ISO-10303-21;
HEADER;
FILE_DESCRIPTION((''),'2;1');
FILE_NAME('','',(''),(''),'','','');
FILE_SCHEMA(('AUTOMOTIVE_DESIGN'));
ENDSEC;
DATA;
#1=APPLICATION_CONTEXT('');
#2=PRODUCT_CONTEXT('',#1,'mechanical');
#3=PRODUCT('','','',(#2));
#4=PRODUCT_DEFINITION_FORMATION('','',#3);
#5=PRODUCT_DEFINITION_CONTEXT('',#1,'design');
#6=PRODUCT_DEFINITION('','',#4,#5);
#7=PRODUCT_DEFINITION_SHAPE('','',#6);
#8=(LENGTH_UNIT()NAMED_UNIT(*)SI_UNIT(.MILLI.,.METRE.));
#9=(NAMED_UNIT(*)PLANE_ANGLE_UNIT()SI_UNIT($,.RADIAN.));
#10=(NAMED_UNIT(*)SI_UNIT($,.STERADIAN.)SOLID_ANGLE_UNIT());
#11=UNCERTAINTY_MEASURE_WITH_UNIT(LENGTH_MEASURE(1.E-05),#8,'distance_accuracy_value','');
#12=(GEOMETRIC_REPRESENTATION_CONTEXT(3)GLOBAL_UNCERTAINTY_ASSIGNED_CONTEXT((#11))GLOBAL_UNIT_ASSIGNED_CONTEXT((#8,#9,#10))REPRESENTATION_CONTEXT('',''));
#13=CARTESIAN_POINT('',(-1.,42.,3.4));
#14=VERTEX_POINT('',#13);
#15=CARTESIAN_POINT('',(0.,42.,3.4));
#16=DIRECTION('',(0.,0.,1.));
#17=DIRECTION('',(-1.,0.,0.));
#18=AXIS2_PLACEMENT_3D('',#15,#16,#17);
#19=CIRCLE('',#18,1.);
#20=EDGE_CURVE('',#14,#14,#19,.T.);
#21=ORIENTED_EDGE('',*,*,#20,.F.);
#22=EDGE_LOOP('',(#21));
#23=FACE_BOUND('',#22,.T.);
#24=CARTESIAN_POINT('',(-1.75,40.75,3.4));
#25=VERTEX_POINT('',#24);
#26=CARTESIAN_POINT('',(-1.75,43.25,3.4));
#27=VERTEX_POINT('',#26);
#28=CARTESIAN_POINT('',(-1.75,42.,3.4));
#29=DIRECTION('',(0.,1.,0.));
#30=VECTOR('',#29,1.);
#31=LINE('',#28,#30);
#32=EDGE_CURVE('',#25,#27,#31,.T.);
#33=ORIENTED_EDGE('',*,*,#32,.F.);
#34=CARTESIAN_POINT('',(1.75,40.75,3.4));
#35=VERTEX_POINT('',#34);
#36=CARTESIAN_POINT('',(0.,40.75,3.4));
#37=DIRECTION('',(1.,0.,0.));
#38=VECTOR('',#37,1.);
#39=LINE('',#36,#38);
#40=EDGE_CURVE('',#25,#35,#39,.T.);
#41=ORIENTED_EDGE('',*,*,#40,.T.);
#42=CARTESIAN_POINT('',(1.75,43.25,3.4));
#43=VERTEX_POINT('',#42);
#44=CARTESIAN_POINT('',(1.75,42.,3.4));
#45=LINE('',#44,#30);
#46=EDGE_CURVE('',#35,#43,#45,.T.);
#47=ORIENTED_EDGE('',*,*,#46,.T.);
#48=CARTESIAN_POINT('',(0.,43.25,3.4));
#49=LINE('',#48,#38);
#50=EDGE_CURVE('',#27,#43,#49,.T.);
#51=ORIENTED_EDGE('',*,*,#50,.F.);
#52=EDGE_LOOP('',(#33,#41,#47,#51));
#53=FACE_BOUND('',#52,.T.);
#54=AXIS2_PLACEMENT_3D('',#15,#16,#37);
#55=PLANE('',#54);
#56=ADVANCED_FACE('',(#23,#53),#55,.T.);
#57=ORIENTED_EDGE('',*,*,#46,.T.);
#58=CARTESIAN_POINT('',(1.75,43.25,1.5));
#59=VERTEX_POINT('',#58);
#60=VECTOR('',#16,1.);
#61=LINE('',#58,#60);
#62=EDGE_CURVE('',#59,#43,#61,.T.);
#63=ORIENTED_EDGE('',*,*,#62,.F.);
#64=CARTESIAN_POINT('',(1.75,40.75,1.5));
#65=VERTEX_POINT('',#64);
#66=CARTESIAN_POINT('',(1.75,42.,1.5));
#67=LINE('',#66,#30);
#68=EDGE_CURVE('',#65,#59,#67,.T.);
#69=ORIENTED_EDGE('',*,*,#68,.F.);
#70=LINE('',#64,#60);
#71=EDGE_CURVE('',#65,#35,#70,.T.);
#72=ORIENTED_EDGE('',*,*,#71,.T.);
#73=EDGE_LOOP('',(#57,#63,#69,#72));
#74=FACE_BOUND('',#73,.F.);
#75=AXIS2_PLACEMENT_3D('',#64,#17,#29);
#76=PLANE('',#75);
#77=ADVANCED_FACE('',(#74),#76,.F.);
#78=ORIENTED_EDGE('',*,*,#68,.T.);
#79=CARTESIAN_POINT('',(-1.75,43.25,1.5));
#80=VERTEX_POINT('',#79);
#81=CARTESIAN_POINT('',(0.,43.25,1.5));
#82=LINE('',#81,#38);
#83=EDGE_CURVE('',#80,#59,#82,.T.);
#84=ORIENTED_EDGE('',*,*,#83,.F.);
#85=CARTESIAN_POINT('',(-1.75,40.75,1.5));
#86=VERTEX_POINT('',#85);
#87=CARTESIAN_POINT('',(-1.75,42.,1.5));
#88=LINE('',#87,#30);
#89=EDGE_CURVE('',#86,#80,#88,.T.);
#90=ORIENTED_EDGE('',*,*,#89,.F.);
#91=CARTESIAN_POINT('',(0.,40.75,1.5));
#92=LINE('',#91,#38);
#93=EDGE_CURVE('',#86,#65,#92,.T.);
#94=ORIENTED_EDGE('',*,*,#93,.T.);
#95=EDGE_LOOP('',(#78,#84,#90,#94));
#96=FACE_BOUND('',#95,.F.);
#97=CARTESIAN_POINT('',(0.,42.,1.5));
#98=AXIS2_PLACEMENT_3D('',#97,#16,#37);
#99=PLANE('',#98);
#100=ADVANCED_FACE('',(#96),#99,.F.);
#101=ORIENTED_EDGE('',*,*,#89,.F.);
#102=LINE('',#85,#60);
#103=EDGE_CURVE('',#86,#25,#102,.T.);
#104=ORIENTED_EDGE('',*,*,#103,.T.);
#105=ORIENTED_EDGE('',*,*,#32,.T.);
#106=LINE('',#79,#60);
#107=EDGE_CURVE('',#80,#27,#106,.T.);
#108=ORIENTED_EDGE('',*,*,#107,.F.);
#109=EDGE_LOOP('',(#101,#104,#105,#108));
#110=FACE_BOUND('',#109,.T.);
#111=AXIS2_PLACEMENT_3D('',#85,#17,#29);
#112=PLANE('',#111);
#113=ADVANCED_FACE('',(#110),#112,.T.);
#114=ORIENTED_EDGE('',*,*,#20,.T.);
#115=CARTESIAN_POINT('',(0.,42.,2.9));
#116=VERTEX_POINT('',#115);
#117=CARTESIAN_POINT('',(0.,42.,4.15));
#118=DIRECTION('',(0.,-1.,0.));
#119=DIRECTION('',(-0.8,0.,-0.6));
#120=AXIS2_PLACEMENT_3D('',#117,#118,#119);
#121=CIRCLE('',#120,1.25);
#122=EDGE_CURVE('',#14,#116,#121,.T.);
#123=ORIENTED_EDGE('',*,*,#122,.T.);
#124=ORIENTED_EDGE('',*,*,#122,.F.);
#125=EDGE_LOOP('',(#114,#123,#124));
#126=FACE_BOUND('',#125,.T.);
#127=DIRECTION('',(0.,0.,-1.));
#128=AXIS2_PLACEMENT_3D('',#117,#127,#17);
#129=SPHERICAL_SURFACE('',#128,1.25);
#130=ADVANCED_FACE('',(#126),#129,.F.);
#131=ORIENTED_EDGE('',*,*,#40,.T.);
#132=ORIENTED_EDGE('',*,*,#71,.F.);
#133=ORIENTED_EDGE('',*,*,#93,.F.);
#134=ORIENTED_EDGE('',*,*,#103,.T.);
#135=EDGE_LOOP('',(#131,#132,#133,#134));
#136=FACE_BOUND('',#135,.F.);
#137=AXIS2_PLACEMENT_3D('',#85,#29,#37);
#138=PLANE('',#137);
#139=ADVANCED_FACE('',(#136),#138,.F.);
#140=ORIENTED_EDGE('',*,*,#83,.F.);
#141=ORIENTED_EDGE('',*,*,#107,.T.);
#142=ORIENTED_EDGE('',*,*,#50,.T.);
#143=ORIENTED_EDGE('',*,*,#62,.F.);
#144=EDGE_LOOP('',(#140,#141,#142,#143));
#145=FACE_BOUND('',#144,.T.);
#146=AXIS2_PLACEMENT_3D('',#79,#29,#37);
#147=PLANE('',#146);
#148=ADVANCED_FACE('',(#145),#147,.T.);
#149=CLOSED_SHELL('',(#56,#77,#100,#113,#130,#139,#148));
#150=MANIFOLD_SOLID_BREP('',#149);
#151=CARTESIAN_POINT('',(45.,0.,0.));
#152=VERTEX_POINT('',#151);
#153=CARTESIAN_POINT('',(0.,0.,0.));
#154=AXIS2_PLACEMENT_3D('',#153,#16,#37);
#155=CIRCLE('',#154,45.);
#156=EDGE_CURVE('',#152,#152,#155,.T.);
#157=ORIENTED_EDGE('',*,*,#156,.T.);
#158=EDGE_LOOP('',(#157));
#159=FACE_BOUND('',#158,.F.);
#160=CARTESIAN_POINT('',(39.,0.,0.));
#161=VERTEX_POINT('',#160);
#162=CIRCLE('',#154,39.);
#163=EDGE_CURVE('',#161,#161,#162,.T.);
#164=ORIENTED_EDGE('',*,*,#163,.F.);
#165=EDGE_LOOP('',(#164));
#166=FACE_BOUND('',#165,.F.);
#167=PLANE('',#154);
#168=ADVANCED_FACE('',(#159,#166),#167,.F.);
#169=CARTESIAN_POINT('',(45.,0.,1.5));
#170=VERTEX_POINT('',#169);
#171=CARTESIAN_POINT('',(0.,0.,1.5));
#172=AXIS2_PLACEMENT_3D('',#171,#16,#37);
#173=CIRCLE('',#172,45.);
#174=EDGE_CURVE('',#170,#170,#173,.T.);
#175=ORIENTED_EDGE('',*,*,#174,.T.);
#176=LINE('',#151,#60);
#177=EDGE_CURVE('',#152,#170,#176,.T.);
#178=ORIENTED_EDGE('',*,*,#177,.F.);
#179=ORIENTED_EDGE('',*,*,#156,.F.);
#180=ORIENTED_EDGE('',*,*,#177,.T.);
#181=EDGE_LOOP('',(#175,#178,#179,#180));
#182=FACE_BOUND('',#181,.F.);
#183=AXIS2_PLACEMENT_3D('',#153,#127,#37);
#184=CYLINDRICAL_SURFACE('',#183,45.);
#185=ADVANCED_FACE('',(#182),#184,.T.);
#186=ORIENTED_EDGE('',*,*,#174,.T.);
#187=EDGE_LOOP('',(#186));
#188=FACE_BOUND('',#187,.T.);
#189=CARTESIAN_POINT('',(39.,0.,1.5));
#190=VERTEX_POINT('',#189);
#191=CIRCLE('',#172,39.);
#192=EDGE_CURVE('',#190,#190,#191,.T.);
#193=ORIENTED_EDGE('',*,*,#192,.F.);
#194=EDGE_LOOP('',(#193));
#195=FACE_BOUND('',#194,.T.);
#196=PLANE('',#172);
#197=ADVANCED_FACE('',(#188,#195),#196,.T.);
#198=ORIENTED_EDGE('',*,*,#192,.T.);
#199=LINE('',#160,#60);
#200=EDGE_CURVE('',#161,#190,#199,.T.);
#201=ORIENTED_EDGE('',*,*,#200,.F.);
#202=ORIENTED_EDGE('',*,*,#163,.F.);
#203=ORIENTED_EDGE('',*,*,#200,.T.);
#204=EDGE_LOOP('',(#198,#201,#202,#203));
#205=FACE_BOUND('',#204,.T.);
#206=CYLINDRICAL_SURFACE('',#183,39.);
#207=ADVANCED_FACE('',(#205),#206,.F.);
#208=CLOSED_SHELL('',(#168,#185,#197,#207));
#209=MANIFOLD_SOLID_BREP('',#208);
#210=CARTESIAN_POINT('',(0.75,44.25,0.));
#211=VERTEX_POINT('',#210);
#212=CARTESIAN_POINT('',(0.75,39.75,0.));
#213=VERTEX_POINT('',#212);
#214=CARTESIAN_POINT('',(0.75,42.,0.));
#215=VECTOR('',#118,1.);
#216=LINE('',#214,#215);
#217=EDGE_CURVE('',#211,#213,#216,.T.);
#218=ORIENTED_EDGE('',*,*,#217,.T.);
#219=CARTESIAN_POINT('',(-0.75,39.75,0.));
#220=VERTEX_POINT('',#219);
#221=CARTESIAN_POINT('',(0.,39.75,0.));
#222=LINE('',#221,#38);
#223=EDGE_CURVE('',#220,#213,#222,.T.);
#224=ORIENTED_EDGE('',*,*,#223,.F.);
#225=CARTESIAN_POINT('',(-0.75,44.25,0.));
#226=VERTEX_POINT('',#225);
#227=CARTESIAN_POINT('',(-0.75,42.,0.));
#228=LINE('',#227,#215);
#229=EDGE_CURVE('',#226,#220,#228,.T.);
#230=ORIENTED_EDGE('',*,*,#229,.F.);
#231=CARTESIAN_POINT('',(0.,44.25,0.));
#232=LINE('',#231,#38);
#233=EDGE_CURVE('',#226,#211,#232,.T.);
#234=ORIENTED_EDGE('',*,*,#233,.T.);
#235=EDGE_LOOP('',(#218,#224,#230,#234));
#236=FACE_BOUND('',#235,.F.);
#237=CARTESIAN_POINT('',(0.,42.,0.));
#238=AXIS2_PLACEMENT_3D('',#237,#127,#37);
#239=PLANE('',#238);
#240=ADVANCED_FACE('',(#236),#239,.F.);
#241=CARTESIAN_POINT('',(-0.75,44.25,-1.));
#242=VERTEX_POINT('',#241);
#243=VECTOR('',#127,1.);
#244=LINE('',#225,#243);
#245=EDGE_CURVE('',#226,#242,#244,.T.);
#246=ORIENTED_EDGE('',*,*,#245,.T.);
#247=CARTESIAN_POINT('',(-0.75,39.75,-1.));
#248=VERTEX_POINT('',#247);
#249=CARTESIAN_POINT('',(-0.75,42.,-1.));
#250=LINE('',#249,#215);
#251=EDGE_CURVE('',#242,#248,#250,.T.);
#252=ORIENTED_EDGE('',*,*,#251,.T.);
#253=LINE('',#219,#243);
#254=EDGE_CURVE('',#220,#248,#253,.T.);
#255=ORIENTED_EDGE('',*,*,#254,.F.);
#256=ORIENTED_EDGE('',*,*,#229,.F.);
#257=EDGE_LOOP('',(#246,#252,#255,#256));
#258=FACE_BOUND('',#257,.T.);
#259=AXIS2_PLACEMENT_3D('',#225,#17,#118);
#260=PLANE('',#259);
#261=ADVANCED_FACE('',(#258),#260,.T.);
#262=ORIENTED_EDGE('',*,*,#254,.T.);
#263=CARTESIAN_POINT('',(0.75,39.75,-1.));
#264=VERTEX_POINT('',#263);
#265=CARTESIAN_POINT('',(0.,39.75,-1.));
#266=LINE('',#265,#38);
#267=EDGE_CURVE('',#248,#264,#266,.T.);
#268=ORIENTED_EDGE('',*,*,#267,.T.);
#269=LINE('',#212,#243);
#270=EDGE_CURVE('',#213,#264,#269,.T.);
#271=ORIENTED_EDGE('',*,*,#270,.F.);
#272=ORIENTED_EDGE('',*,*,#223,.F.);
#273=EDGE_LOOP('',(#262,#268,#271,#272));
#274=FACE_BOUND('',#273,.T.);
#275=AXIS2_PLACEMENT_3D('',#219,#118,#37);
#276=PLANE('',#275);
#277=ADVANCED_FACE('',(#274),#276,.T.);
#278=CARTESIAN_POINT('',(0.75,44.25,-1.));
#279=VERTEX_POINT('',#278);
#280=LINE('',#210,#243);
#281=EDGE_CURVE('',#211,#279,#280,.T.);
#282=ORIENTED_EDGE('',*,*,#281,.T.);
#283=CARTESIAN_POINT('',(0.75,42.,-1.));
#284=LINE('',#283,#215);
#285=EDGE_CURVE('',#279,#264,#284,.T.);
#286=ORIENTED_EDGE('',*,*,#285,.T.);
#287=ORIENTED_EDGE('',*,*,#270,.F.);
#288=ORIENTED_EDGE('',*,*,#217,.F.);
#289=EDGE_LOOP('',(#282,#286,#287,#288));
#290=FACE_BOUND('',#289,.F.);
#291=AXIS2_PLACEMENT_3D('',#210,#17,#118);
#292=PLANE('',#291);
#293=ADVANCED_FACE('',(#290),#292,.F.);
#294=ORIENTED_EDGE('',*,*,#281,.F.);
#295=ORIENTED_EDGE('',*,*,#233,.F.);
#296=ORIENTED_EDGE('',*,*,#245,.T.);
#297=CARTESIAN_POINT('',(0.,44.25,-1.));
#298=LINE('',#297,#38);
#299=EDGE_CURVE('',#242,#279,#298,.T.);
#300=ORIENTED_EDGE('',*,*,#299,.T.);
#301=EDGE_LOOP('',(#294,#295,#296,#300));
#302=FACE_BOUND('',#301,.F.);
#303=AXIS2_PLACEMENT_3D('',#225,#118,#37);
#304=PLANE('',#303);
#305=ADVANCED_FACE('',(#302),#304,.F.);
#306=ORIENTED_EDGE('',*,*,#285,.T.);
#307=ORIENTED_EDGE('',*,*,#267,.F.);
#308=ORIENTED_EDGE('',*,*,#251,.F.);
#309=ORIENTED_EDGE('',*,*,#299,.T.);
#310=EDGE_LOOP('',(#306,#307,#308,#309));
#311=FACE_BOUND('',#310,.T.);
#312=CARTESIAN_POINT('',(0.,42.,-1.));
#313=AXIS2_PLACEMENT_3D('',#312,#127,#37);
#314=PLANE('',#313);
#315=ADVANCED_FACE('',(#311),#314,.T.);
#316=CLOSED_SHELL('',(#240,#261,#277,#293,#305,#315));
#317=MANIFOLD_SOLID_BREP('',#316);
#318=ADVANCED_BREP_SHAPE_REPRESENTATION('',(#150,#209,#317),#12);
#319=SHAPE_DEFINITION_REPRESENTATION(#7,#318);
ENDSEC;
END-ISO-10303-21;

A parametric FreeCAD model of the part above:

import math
import FreeCAD as App
import Part
import Sketcher


def add_polygon(sketch, points):
    """Adds a closed chain of lines whose ends are joined by coincident constraints."""
    first, n = sketch.GeometryCount, len(points)
    for a, b in zip(points, points[1:] + points[:1]):
        sketch.addGeometry(Part.LineSegment(App.Vector(*a, 0), App.Vector(*b, 0)), False)
    for i in range(n):
        sketch.addConstraint(Sketcher.Constraint("Coincident", first + i, 2, first + (i + 1) % n, 1))

doc = App.newDocument("Part")
body = doc.addObject("PartDesign::Body", "Body")

# Sketch on XY plane
sketch1 = doc.addObject("Sketcher::SketchObject", "Sketch")
body.addObject(sketch1)
sketch1.AttachmentSupport = (doc.XY_Plane, [""])
sketch1.MapMode = "FlatFace"
sketch1.addGeometry([
    Part.Circle(App.Vector(0, 0, 0), App.Vector(0, 0, 1), 45),
    Part.Circle(App.Vector(0, 0, 0), App.Vector(0, 0, 1), 39),
], False)
sketch1.addConstraint([
    Sketcher.Constraint("Coincident", 0, 3, -1, 1),
    Sketcher.Constraint("Coincident", 1, 3, -1, 1),
    Sketcher.Constraint("Diameter", 0, 90.0),
    Sketcher.Constraint("Diameter", 1, 78.0),
])
pad1 = doc.addObject("PartDesign::Pad", "Pad")
body.addObject(pad1)
pad1.Profile = sketch1
pad1.Length = 1.5
body2 = doc.addObject("PartDesign::Body", "Body001")

# Sketch on XY plane
sketch2 = doc.addObject("Sketcher::SketchObject", "Sketch001")
body2.addObject(sketch2)
sketch2.AttachmentSupport = (doc.getObject("XY_Plane001"), [""])
sketch2.MapMode = "FlatFace"
sketch2.AttachmentOffset = App.Placement(App.Vector(0, 0, 1.5), App.Rotation())
add_polygon(sketch2, [(-1.8, 43.2), (-1.8, 40.8), (1.8, 40.8), (1.8, 43.2)])  # lines 0-3
sketch2.addConstraint([
    Sketcher.Constraint("Vertical", 0),
    Sketcher.Constraint("Horizontal", 1),
    Sketcher.Constraint("Vertical", 2),
    Sketcher.Constraint("Horizontal", 3),
    Sketcher.Constraint("DistanceX", 1, 1, 1, 2, 3.5),
    Sketcher.Constraint("DistanceY", 0, 2, 0, 1, 2.5),
    Sketcher.Constraint("DistanceX", 0, 2, -1, 1, 1.75),
    Sketcher.Constraint("DistanceY", -1, 1, 0, 2, 40.75),
])
pad2 = doc.addObject("PartDesign::Pad", "Pad001")
body2.addObject(pad2)
pad2.Profile = sketch2
pad2.Length = 1.9

# Sketch on XZ plane
sketch3 = doc.addObject("Sketcher::SketchObject", "Sketch002")
body2.addObject(sketch3)
sketch3.AttachmentSupport = (doc.getObject("XZ_Plane001"), [""])
sketch3.MapMode = "FlatFace"
sketch3.AttachmentOffset = App.Placement(App.Vector(0, 0, -42), App.Rotation())
sketch3.addGeometry([
    Part.LineSegment(App.Vector(0, 3.4, 0), App.Vector(-1, 3.4, 0)),
    Part.ArcOfCircle(Part.Circle(App.Vector(0, 4.2, 0), App.Vector(0, 0, 1), 1.2), math.radians(-143), math.radians(-90)),
    Part.LineSegment(App.Vector(0, 2.9, 0), App.Vector(0, 3.4, 0)),
], False)
sketch3.addConstraint([
    Sketcher.Constraint("Coincident", 0, 2, 1, 1),
    Sketcher.Constraint("Coincident", 1, 2, 2, 1),
    Sketcher.Constraint("Coincident", 2, 2, 0, 1),
    Sketcher.Constraint("Horizontal", 0),
    Sketcher.Constraint("Vertical", 2),
    Sketcher.Constraint("PointOnObject", 1, 3, -2),
    Sketcher.Constraint("PointOnObject", 1, 2, -2),
    Sketcher.Constraint("DistanceX", 0, 2, 0, 1, 1.0),
    Sketcher.Constraint("Radius", 1, 1.25),
    Sketcher.Constraint("DistanceY", -1, 1, 0, 2, 3.4),
])
groove = doc.addObject("PartDesign::Groove", "Groove")
body2.addObject(groove)
groove.Profile = sketch3
groove.ReferenceAxis = (sketch3, ["V_Axis"])
groove.Angle = 360
body3 = doc.addObject("PartDesign::Body", "Body002")

# Sketch on XY plane
sketch4 = doc.addObject("Sketcher::SketchObject", "Sketch003")
body3.addObject(sketch4)
sketch4.AttachmentSupport = (doc.getObject("XY_Plane002"), [""])
sketch4.MapMode = "FlatFace"
add_polygon(sketch4, [(-0.8, 39.8), (-0.8, 44.2), (0.8, 44.2), (0.8, 39.8)])  # lines 0-3
sketch4.addConstraint([
    Sketcher.Constraint("Vertical", 0),
    Sketcher.Constraint("Horizontal", 1),
    Sketcher.Constraint("Vertical", 2),
    Sketcher.Constraint("Horizontal", 3),
    Sketcher.Constraint("DistanceX", 1, 1, 1, 2, 1.5),
    Sketcher.Constraint("DistanceY", 0, 1, 0, 2, 4.5),
    Sketcher.Constraint("DistanceX", 0, 2, -1, 1, 0.75),
    Sketcher.Constraint("DistanceY", -1, 1, 0, 2, 44.25),
])
pad3 = doc.addObject("PartDesign::Pad", "Pad002")
body3.addObject(pad3)
pad3.Profile = sketch4
pad3.Length = 1
pad3.Reversed = True

doc.recompute()
